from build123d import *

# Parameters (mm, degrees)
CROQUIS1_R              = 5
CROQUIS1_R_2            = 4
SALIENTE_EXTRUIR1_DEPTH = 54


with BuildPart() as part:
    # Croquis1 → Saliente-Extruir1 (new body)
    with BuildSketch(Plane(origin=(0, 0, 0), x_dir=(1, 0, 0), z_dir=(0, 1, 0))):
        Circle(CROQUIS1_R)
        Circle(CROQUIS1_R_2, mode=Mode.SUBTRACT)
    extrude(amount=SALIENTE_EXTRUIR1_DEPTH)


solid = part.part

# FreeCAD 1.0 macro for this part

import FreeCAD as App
import Part
import Sketcher
Q = App.Units.Quantity

doc = App.newDocument("Part")
params = doc.addObject("Spreadsheet::Sheet", "Params")
for row, (alias, value) in enumerate([
    ("sketch1_diameter", "10 mm"),
    ("sketch1_diameter2", "8 mm"),
    ("pad1_length", "54 mm"),
], start=1):
    params.set(f"A{row}", alias)
    params.set(f"B{row}", "=" + value)
    params.setAlias(f"B{row}", alias)

body = doc.addObject("PartDesign::Body", "Body")

# Sketch on XZ plane
sketch1 = body.newObject("Sketcher::SketchObject", "Sketch")
sketch1.AttachmentSupport = (doc.getObject("XZ_Plane"), [""])
sketch1.MapMode = "FlatFace"
sketch1.addGeometry([
    Part.Circle(App.Vector(0, 0, 0), App.Vector(0, 0, 1), 5),
    Part.Circle(App.Vector(0, 0, 0), App.Vector(0, 0, 1), 4),
], False)
sketch1.addConstraint([
    Sketcher.Constraint("Coincident", 0, 3, -1, 1),
    Sketcher.Constraint("Coincident", 1, 3, -1, 1),
    Sketcher.Constraint("Diameter", 0, Q("10 mm")),
    Sketcher.Constraint("Diameter", 1, Q("8 mm")),
])
sketch1.setExpression("Constraints[2]", "Params.sketch1_diameter")
sketch1.setExpression("Constraints[3]", "Params.sketch1_diameter2")
pad1 = body.newObject("PartDesign::Pad", "Pad")
pad1.Profile = sketch1
pad1.setExpression("Length", "Params.pad1_length")
pad1.Reversed = True

doc.recompute()
